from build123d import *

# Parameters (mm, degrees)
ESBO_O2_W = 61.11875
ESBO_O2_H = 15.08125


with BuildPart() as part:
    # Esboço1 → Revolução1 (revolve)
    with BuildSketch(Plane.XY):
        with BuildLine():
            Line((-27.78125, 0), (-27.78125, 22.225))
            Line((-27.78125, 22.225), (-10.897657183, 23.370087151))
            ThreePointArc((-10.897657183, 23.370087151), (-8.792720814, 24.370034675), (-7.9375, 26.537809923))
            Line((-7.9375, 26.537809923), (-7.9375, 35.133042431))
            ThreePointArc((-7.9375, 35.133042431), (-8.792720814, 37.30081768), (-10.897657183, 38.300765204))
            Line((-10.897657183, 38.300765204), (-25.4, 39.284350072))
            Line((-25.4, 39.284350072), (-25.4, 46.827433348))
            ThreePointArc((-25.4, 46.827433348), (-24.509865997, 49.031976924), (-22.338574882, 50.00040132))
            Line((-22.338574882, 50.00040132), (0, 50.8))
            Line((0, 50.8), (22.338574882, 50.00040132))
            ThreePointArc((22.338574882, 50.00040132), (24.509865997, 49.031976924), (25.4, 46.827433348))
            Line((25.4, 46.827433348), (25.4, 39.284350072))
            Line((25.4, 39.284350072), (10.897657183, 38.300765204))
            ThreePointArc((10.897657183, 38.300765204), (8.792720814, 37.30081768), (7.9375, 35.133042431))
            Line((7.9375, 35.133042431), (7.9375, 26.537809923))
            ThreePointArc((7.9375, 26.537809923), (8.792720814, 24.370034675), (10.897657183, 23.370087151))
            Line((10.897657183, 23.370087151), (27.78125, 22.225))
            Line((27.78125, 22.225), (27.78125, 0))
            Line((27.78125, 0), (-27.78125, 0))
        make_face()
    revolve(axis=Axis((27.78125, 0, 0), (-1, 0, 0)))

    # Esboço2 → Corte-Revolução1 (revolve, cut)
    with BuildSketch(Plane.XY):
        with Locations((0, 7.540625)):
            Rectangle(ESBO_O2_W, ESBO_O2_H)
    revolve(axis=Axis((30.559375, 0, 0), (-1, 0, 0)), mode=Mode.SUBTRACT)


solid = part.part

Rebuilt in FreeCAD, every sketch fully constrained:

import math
import FreeCAD as App
import Part
import Sketcher
Q = App.Units.Quantity


def add_polygon(sketch, points):
    """Adds a closed chain of lines whose ends are joined by coincident constraints."""
    first, n = sketch.GeometryCount, len(points)
    for a, b in zip(points, points[1:] + points[:1]):
        sketch.addGeometry(Part.LineSegment(App.Vector(*a, 0), App.Vector(*b, 0)), False)
    for i in range(n):
        sketch.addConstraint(Sketcher.Constraint("Coincident", first + i, 2, first + (i + 1) % n, 1))

doc = App.newDocument("Part")
body = doc.addObject("PartDesign::Body", "Body")

# Sketch on XY plane
sketch1 = body.newObject("Sketcher::SketchObject", "Sketch")
sketch1.AttachmentSupport = (doc.getObject("XY_Plane"), [""])
sketch1.MapMode = "FlatFace"
sketch1.addGeometry(Part.LineSegment(App.Vector(-27.8, 22.2, 0), App.Vector(-27.8, 0, 0)), False)
sketch1.addGeometry(Part.LineSegment(App.Vector(-27.8, 0, 0), App.Vector(27.8, 0, 0)), False)
sketch1.addGeometry(Part.LineSegment(App.Vector(27.8, 0, 0), App.Vector(27.8, 22.2, 0)), False)
sketch1.addGeometry(Part.LineSegment(App.Vector(27.8, 22.2, 0), App.Vector(10.9, 23.4, 0)), False)
sketch1.addGeometry(Part.ArcOfCircle(Part.Circle(App.Vector(11.1, 26.5, 0), App.Vector(0, 0, 1), 3.2), math.radians(-180), math.radians(-94)), False)
sketch1.addGeometry(Part.LineSegment(App.Vector(7.9, 26.5, 0), App.Vector(7.9, 35.1, 0)), False)
sketch1.addGeometry(Part.ArcOfCircle(Part.Circle(App.Vector(11.1, 35.1, 0), App.Vector(0, 0, 1), 3.2), math.radians(94), math.radians(180)), False)
sketch1.addGeometry(Part.LineSegment(App.Vector(10.9, 38.3, 0), App.Vector(25.4, 39.3, 0)), False)
sketch1.addGeometry(Part.LineSegment(App.Vector(25.4, 39.3, 0), App.Vector(25.4, 46.8, 0)), False)
sketch1.addGeometry(Part.ArcOfCircle(Part.Circle(App.Vector(22.2, 46.8, 0), App.Vector(0, 0, 1), 3.2), math.radians(0), math.radians(88)), False)
sketch1.addGeometry(Part.LineSegment(App.Vector(22.3, 50, 0), App.Vector(0, 50.8, 0)), False)
sketch1.addGeometry(Part.LineSegment(App.Vector(0, 50.8, 0), App.Vector(-22.3, 50, 0)), False)
sketch1.addGeometry(Part.ArcOfCircle(Part.Circle(App.Vector(-22.2, 46.8, 0), App.Vector(0, 0, 1), 3.2), math.radians(92), math.radians(180)), False)
sketch1.addGeometry(Part.LineSegment(App.Vector(-25.4, 46.8, 0), App.Vector(-25.4, 39.3, 0)), False)
sketch1.addGeometry(Part.LineSegment(App.Vector(-25.4, 39.3, 0), App.Vector(-10.9, 38.3, 0)), False)
sketch1.addGeometry(Part.ArcOfCircle(Part.Circle(App.Vector(-11.1, 35.1, 0), App.Vector(0, 0, 1), 3.2), math.radians(0), math.radians(86)), False)
sketch1.addGeometry(Part.LineSegment(App.Vector(-7.9, 35.1, 0), App.Vector(-7.9, 26.5, 0)), False)
sketch1.addGeometry(Part.ArcOfCircle(Part.Circle(App.Vector(-11.1, 26.5, 0), App.Vector(0, 0, 1), 3.2), math.radians(-86), math.radians(0)), False)
sketch1.addGeometry(Part.LineSegment(App.Vector(-10.9, 23.4, 0), App.Vector(-27.8, 22.2, 0)), False)
sketch1.addConstraint(Sketcher.Constraint("Coincident", 0, 2, 1, 1))
sketch1.addConstraint(Sketcher.Constraint("Coincident", 1, 2, 2, 1))
sketch1.addConstraint(Sketcher.Constraint("Coincident", 2, 2, 3, 1))
sketch1.addConstraint(Sketcher.Constraint("Tangent", 3, 2, 4, 2))
sketch1.addConstraint(Sketcher.Constraint("Tangent", 4, 1, 5, 1))
sketch1.addConstraint(Sketcher.Constraint("Tangent", 5, 2, 6, 2))
sketch1.addConstraint(Sketcher.Constraint("Tangent", 6, 1, 7, 1))
sketch1.addConstraint(Sketcher.Constraint("Coincident", 7, 2, 8, 1))
sketch1.addConstraint(Sketcher.Constraint("Tangent", 8, 2, 9, 1))
sketch1.addConstraint(Sketcher.Constraint("Tangent", 9, 2, 10, 1))
sketch1.addConstraint(Sketcher.Constraint("Coincident", 10, 2, 11, 1))
sketch1.addConstraint(Sketcher.Constraint("Tangent", 11, 2, 12, 1))
sketch1.addConstraint(Sketcher.Constraint("Tangent", 12, 2, 13, 1))
sketch1.addConstraint(Sketcher.Constraint("Coincident", 13, 2, 14, 1))
sketch1.addConstraint(Sketcher.Constraint("Tangent", 14, 2, 15, 2))
sketch1.addConstraint(Sketcher.Constraint("Tangent", 15, 1, 16, 1))
sketch1.addConstraint(Sketcher.Constraint("Tangent", 16, 2, 17, 2))
sketch1.addConstraint(Sketcher.Constraint("Tangent", 17, 1, 18, 1))
sketch1.addConstraint(Sketcher.Constraint("Coincident", 18, 2, 0, 1))
sketch1.addConstraint(Sketcher.Constraint("Vertical", 0))
sketch1.addConstraint(Sketcher.Constraint("Horizontal", 1))
sketch1.addConstraint(Sketcher.Constraint("Vertical", 2))
sketch1.addConstraint(Sketcher.Constraint("Vertical", 5))
sketch1.addConstraint(Sketcher.Constraint("Vertical", 8))
sketch1.addConstraint(Sketcher.Constraint("Vertical", 13))
sketch1.addConstraint(Sketcher.Constraint("Vertical", 16))
sketch1.addConstraint(Sketcher.Constraint("Equal", 4, 6))
sketch1.addConstraint(Sketcher.Constraint("Equal", 6, 9))
sketch1.addConstraint(Sketcher.Constraint("Equal", 9, 12))
sketch1.addConstraint(Sketcher.Constraint("Equal", 12, 15))
sketch1.addConstraint(Sketcher.Constraint("Equal", 15, 17))
sketch1.addConstraint(Sketcher.Constraint("Symmetric", 0, 2, 1, 2, -1, 1))
sketch1.addConstraint(Sketcher.Constraint("Symmetric", 9, 3, 12, 3, -2))
sketch1.addConstraint(Sketcher.Constraint("Symmetric", 6, 3, 15, 3, -2))
sketch1.addConstraint(Sketcher.Constraint("Symmetric", 3, 2, 17, 1, -2))
sketch1.addConstraint(Sketcher.Constraint("PointOnObject", 10, 2, -2))
sketch1.addConstraint(Sketcher.Constraint("Parallel", 3, 14))
sketch1.addConstraint(Sketcher.Constraint("Parallel", 7, 18))
sketch1.addConstraint(Sketcher.Constraint("DistanceX", -1, 1, 7, 2, Q("1 in")))
sketch1.addConstraint(Sketcher.Constraint("DistanceY", -1, 1, 10, 2, Q("2 in")))
sketch1.addConstraint(Sketcher.Constraint("Radius", 4, Q("0.125 in")))
sketch1.addConstraint(Sketcher.Constraint("DistanceX", 1, 1, 1, 2, Q("2.1875 in")))
sketch1.addConstraint(Sketcher.Constraint("DistanceY", 0, 2, 0, 1, Q("0.875 in")))
sketch1.addConstraint(Sketcher.Constraint("Angle", 3, Q("176.12 deg")))
sketch1.addConstraint(Sketcher.Constraint("Angle", 10, Q("177.95 deg")))
sketch1.addConstraint(Sketcher.Constraint("DistanceX", 17, 3, 4, 1, Q("0.75 in")))
sketch1.addConstraint(Sketcher.Constraint("DistanceY", 5, 1, 5, 2, 8.595233))
revolution = body.newObject("PartDesign::Revolution", "Revolution")
revolution.Profile = sketch1
revolution.ReferenceAxis = (sketch1, ["H_Axis"])
revolution.Angle = 360

# Sketch on XY plane
sketch2 = body.newObject("Sketcher::SketchObject", "Sketch001")
sketch2.AttachmentSupport = (doc.getObject("XY_Plane"), [""])
sketch2.MapMode = "FlatFace"
add_polygon(sketch2, [(-31, 15), (-31, 0), (31, 0), (31, 15)])  # lines 0-3
sketch2.addConstraint(Sketcher.Constraint("Vertical", 0))
sketch2.addConstraint(Sketcher.Constraint("Horizontal", 1))
sketch2.addConstraint(Sketcher.Constraint("Vertical", 2))
sketch2.addConstraint(Sketcher.Constraint("Horizontal", 3))
sketch2.addConstraint(Sketcher.Constraint("Symmetric", 0, 2, 1, 2, -1, 1))
sketch2.addConstraint(Sketcher.Constraint("DistanceX", 1, 1, 1, 2, Q("2.40625 in")))
sketch2.addConstraint(Sketcher.Constraint("DistanceY", 0, 2, 0, 1, Q("0.59375 in")))
groove = body.newObject("PartDesign::Groove", "Groove")
groove.Profile = sketch2
groove.ReferenceAxis = (sketch2, ["H_Axis"])
groove.Angle = 360

doc.recompute()
